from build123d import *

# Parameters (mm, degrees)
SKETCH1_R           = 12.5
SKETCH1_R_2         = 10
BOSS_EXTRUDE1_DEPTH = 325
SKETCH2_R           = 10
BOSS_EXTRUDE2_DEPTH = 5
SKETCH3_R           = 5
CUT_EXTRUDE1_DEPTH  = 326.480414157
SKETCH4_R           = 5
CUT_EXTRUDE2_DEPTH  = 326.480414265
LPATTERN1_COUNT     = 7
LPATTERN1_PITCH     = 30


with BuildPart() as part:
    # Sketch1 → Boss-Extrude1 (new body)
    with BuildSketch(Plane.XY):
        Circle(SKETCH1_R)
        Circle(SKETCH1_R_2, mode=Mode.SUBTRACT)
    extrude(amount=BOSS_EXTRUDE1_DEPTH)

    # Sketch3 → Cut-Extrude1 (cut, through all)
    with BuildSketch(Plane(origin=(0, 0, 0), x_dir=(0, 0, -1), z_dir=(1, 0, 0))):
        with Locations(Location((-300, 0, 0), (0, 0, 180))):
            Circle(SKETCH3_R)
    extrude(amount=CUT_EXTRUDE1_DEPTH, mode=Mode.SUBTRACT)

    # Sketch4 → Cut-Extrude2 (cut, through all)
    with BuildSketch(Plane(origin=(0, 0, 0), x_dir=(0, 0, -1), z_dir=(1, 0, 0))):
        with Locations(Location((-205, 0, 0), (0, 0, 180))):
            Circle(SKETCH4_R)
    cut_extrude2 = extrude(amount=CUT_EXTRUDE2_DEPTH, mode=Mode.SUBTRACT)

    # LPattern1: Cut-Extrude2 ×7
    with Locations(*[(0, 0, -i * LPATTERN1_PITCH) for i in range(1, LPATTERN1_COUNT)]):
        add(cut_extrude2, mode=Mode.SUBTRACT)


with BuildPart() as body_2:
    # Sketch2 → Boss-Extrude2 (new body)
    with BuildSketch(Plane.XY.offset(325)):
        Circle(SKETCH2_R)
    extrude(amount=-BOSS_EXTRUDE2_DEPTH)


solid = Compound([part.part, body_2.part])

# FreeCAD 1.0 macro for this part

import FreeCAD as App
import Part
import Sketcher
from FreeCAD import Vector
Q = App.Units.Quantity

doc = App.newDocument("Part")
body = doc.addObject("PartDesign::Body", "Body")

# Sketch on XY plane
sketch1 = body.newObject("Sketcher::SketchObject", "Sketch")
sketch1.AttachmentSupport = (doc.getObject("XY_Plane"), [""])
sketch1.MapMode = "FlatFace"
sketch1.addGeometry([
    Part.Circle(Vector(0, 0, 0), Vector(0, 0, 1), 12.5),
    Part.Circle(Vector(0, 0, 0), Vector(0, 0, 1), 10),
], False)
sketch1.addConstraint([
    Sketcher.Constraint("Coincident", 0, 3, -1, 1),
    Sketcher.Constraint("Coincident", 1, 3, -1, 1),
    Sketcher.Constraint("Diameter", 0, Q("25 mm")),
    Sketcher.Constraint("Diameter", 1, Q("20 mm")),
])
pad1 = body.newObject("PartDesign::Pad", "Pad")
pad1.Profile = sketch1
pad1.Length = 325

# Sketch on YZ plane
sketch2 = body.newObject("Sketcher::SketchObject", "Sketch001")
sketch2.AttachmentSupport = (doc.getObject("YZ_Plane"), [""])
sketch2.MapMode = "FlatFace"
sketch2.addGeometry(Part.Circle(Vector(0, 300, 0), Vector(0, 0, 1), 5), False)
sketch2.addConstraint([
    Sketcher.Constraint("PointOnObject", 0, 3, -2),
    Sketcher.Constraint("Diameter", 0, Q("10 mm")),
    Sketcher.Constraint("DistanceY", -1, 1, 0, 3, Q("300 mm")),
])
pocket1 = body.newObject("PartDesign::Pocket", "Pocket")
pocket1.Profile = sketch2
pocket1.Type = "ThroughAll"
pocket1.Reversed = True

# Sketch on YZ plane
sketch3 = body.newObject("Sketcher::SketchObject", "Sketch002")
sketch3.AttachmentSupport = (doc.getObject("YZ_Plane"), [""])
sketch3.MapMode = "FlatFace"
sketch3.addGeometry(Part.Circle(Vector(0, 205, 0), Vector(0, 0, 1), 5), False)
sketch3.addConstraint([
    Sketcher.Constraint("PointOnObject", 0, 3, -2),
    Sketcher.Constraint("Diameter", 0, Q("10 mm")),
    Sketcher.Constraint("DistanceY", -1, 1, 0, 3, Q("205 mm")),
])
pocket2 = body.newObject("PartDesign::Pocket", "Pocket001")
pocket2.Profile = sketch3
pocket2.Type = "ThroughAll"
pocket2.Reversed = True
doc.recompute()

linearpattern = body.newObject("PartDesign::LinearPattern", "LinearPattern")
linearpattern.Originals = [pocket2]
linearpattern.Direction = (doc.getObject("Z_Axis"), [""])
linearpattern.Mode = "offset"
linearpattern.Offset = 30
linearpattern.Occurrences = 7
linearpattern.Reversed = True
body.Tip = linearpattern
body2 = doc.addObject("PartDesign::Body", "Body001")

# Sketch on XY plane
sketch4 = body2.newObject("Sketcher::SketchObject", "Sketch003")
sketch4.AttachmentSupport = (doc.getObject("XY_Plane001"), [""])
sketch4.MapMode = "FlatFace"
sketch4.AttachmentOffset = App.Placement(Vector(0, 0, 325), App.Rotation())
sketch4.addGeometry(Part.Circle(Vector(0, 0, 0), Vector(0, 0, 1), 10), False)
sketch4.addConstraint([
    Sketcher.Constraint("Coincident", 0, 3, -1, 1),
    Sketcher.Constraint("Diameter", 0, Q("20 mm")),
])
pad2 = body2.newObject("PartDesign::Pad", "Pad001")
pad2.Profile = sketch4
pad2.Length = 5
pad2.Reversed = True

doc.recompute()
